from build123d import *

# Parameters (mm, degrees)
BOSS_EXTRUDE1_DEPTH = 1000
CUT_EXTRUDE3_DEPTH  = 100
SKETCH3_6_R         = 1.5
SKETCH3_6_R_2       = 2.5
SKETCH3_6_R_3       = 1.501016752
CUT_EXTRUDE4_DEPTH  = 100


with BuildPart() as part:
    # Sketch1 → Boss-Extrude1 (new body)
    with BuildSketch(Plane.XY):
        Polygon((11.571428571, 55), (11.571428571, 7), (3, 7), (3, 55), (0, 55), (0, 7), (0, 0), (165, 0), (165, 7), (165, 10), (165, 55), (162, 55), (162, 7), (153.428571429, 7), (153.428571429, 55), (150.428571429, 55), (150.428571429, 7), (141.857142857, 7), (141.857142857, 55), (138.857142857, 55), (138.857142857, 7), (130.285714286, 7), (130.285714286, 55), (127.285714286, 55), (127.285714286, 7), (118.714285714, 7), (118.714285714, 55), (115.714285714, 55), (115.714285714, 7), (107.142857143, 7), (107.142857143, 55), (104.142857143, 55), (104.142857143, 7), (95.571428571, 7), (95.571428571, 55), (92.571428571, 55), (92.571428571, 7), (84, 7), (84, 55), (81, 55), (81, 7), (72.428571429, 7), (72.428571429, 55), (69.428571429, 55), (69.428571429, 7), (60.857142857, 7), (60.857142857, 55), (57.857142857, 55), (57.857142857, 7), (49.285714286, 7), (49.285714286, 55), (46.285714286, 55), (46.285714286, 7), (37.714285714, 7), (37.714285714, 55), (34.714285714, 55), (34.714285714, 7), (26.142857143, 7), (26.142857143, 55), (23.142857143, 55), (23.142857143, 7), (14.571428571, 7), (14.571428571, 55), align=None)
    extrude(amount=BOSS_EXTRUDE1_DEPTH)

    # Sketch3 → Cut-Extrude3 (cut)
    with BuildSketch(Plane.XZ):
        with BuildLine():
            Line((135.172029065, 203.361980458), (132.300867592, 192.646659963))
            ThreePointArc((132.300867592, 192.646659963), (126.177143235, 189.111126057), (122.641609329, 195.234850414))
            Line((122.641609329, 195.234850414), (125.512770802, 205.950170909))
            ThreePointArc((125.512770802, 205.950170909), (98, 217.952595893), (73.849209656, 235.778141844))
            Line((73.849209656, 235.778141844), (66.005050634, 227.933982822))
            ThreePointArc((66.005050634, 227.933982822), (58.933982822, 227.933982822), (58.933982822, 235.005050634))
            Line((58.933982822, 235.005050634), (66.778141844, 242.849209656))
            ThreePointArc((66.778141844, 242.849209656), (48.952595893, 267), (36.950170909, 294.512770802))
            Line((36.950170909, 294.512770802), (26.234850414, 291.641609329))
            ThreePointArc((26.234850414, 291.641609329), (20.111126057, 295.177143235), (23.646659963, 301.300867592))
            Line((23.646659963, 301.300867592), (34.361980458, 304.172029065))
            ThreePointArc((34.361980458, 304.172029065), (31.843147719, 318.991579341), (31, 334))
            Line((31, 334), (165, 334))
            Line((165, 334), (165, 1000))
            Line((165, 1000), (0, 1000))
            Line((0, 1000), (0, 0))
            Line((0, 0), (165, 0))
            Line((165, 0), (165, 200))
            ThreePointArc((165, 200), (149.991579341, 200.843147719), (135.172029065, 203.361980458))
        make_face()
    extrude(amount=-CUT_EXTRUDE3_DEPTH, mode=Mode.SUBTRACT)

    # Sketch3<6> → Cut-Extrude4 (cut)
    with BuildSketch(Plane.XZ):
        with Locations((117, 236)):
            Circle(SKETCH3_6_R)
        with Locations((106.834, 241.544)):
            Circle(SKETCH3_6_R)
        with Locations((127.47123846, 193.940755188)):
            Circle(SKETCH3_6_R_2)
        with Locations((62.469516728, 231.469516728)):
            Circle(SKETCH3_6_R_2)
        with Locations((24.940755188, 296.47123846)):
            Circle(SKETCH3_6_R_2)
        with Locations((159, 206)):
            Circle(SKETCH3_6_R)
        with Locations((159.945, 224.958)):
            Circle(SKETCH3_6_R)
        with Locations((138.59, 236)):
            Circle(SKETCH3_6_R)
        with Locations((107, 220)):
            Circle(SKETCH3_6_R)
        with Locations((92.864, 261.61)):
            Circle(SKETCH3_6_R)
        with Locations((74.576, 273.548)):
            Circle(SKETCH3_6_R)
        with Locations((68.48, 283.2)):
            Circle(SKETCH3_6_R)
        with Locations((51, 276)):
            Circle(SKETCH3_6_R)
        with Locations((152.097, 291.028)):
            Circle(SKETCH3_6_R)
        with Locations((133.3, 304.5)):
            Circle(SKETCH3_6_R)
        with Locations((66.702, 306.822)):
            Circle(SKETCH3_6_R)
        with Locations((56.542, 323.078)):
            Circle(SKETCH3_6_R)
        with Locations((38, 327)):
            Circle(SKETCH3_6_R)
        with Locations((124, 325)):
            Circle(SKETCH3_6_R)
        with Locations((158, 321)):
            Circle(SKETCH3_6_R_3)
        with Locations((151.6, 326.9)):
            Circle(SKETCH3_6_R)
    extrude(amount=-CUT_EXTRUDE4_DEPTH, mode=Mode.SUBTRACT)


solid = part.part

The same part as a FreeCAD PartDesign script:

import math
import FreeCAD as App
import Part
import Sketcher
Q = App.Units.Quantity

doc = App.newDocument("Part")
body = doc.addObject("PartDesign::Body", "Body")

sketch1 = body.newObject("Sketcher::SketchObject", "Sketch")
sketch1.AttachmentSupport = (doc.getObject("XY_Plane"), [""])
sketch1.MapMode = "FlatFace"
sketch1.addGeometry([
    Part.LineSegment(App.Vector(11.6, 55, 0), App.Vector(11.6, 7, 0)),
    Part.LineSegment(App.Vector(11.6, 7, 0), App.Vector(3, 7, 0)),
    Part.LineSegment(App.Vector(3, 7, 0), App.Vector(3, 55, 0)),
    Part.LineSegment(App.Vector(3, 55, 0), App.Vector(0, 55, 0)),
    Part.LineSegment(App.Vector(0, 55, 0), App.Vector(0, 0, 0)),
    Part.LineSegment(App.Vector(0, 0, 0), App.Vector(165, 0, 0)),
    Part.LineSegment(App.Vector(165, 0, 0), App.Vector(165, 55, 0)),
    Part.LineSegment(App.Vector(165, 55, 0), App.Vector(162, 55, 0)),
    Part.LineSegment(App.Vector(162, 55, 0), App.Vector(162, 7, 0)),
    Part.LineSegment(App.Vector(162, 7, 0), App.Vector(153.4, 7, 0)),
    Part.LineSegment(App.Vector(153.4, 7, 0), App.Vector(153.4, 55, 0)),
    Part.LineSegment(App.Vector(153.4, 55, 0), App.Vector(150.4, 55, 0)),
    Part.LineSegment(App.Vector(150.4, 55, 0), App.Vector(150.4, 7, 0)),
    Part.LineSegment(App.Vector(150.4, 7, 0), App.Vector(141.9, 7, 0)),
    Part.LineSegment(App.Vector(141.9, 7, 0), App.Vector(141.9, 55, 0)),
    Part.LineSegment(App.Vector(141.9, 55, 0), App.Vector(138.9, 55, 0)),
    Part.LineSegment(App.Vector(138.9, 55, 0), App.Vector(138.9, 7, 0)),
    Part.LineSegment(App.Vector(138.9, 7, 0), App.Vector(130.3, 7, 0)),
    Part.LineSegment(App.Vector(130.3, 7, 0), App.Vector(130.3, 55, 0)),
    Part.LineSegment(App.Vector(130.3, 55, 0), App.Vector(127.3, 55, 0)),
    Part.LineSegment(App.Vector(127.3, 55, 0), App.Vector(127.3, 7, 0)),
    Part.LineSegment(App.Vector(127.3, 7, 0), App.Vector(118.7, 7, 0)),
    Part.LineSegment(App.Vector(118.7, 7, 0), App.Vector(118.7, 55, 0)),
    Part.LineSegment(App.Vector(118.7, 55, 0), App.Vector(115.7, 55, 0)),
    Part.LineSegment(App.Vector(115.7, 55, 0), App.Vector(115.7, 7, 0)),
    Part.LineSegment(App.Vector(115.7, 7, 0), App.Vector(107.1, 7, 0)),
    Part.LineSegment(App.Vector(107.1, 7, 0), App.Vector(107.1, 55, 0)),
    Part.LineSegment(App.Vector(107.1, 55, 0), App.Vector(104.1, 55, 0)),
    Part.LineSegment(App.Vector(104.1, 55, 0), App.Vector(104.1, 7, 0)),
    Part.LineSegment(App.Vector(104.1, 7, 0), App.Vector(95.6, 7, 0)),
    Part.LineSegment(App.Vector(95.6, 7, 0), App.Vector(95.6, 55, 0)),
    Part.LineSegment(App.Vector(95.6, 55, 0), App.Vector(92.6, 55, 0)),
    Part.LineSegment(App.Vector(92.6, 55, 0), App.Vector(92.6, 7, 0)),
    Part.LineSegment(App.Vector(92.6, 7, 0), App.Vector(84, 7, 0)),
    Part.LineSegment(App.Vector(84, 7, 0), App.Vector(84, 55, 0)),
    Part.LineSegment(App.Vector(84, 55, 0), App.Vector(81, 55, 0)),
    Part.LineSegment(App.Vector(81, 55, 0), App.Vector(81, 7, 0)),
    Part.LineSegment(App.Vector(81, 7, 0), App.Vector(72.4, 7, 0)),
    Part.LineSegment(App.Vector(72.4, 7, 0), App.Vector(72.4, 55, 0)),
    Part.LineSegment(App.Vector(72.4, 55, 0), App.Vector(69.4, 55, 0)),
    Part.LineSegment(App.Vector(69.4, 55, 0), App.Vector(69.4, 7, 0)),
    Part.LineSegment(App.Vector(69.4, 7, 0), App.Vector(60.9, 7, 0)),
    Part.LineSegment(App.Vector(60.9, 7, 0), App.Vector(60.9, 55, 0)),
    Part.LineSegment(App.Vector(60.9, 55, 0), App.Vector(57.9, 55, 0)),
    Part.LineSegment(App.Vector(57.9, 55, 0), App.Vector(57.9, 7, 0)),
    Part.LineSegment(App.Vector(57.9, 7, 0), App.Vector(49.3, 7, 0)),
    Part.LineSegment(App.Vector(49.3, 7, 0), App.Vector(49.3, 55, 0)),
    Part.LineSegment(App.Vector(49.3, 55, 0), App.Vector(46.3, 55, 0)),
    Part.LineSegment(App.Vector(46.3, 55, 0), App.Vector(46.3, 7, 0)),
    Part.LineSegment(App.Vector(46.3, 7, 0), App.Vector(37.7, 7, 0)),
    Part.LineSegment(App.Vector(37.7, 7, 0), App.Vector(37.7, 55, 0)),
    Part.LineSegment(App.Vector(37.7, 55, 0), App.Vector(34.7, 55, 0)),
    Part.LineSegment(App.Vector(34.7, 55, 0), App.Vector(34.7, 7, 0)),
    Part.LineSegment(App.Vector(34.7, 7, 0), App.Vector(26.1, 7, 0)),
    Part.LineSegment(App.Vector(26.1, 7, 0), App.Vector(26.1, 55, 0)),
    Part.LineSegment(App.Vector(26.1, 55, 0), App.Vector(23.1, 55, 0)),
    Part.LineSegment(App.Vector(23.1, 55, 0), App.Vector(23.1, 7, 0)),
    Part.LineSegment(App.Vector(23.1, 7, 0), App.Vector(14.6, 7, 0)),
    Part.LineSegment(App.Vector(14.6, 7, 0), App.Vector(14.6, 55, 0)),
    Part.LineSegment(App.Vector(14.6, 55, 0), App.Vector(11.6, 55, 0)),
], False)
sketch1.addConstraint([
    Sketcher.Constraint("Coincident", 0, 2, 1, 1),
    Sketcher.Constraint("Coincident", 1, 2, 2, 1),
    Sketcher.Constraint("Coincident", 2, 2, 3, 1),
    Sketcher.Constraint("Coincident", 3, 2, 4, 1),
    Sketcher.Constraint("Coincident", 4, 2, 5, 1),
    Sketcher.Constraint("Coincident", 5, 2, 6, 1),
    Sketcher.Constraint("Coincident", 6, 2, 7, 1),
    Sketcher.Constraint("Coincident", 7, 2, 8, 1),
    Sketcher.Constraint("Coincident", 8, 2, 9, 1),
    Sketcher.Constraint("Coincident", 9, 2, 10, 1),
    Sketcher.Constraint("Coincident", 10, 2, 11, 1),
    Sketcher.Constraint("Coincident", 11, 2, 12, 1),
    Sketcher.Constraint("Coincident", 12, 2, 13, 1),
    Sketcher.Constraint("Coincident", 13, 2, 14, 1),
    Sketcher.Constraint("Coincident", 14, 2, 15, 1),
    Sketcher.Constraint("Coincident", 15, 2, 16, 1),
    Sketcher.Constraint("Coincident", 16, 2, 17, 1),
    Sketcher.Constraint("Coincident", 17, 2, 18, 1),
    Sketcher.Constraint("Coincident", 18, 2, 19, 1),
    Sketcher.Constraint("Coincident", 19, 2, 20, 1),
    Sketcher.Constraint("Coincident", 20, 2, 21, 1),
    Sketcher.Constraint("Coincident", 21, 2, 22, 1),
    Sketcher.Constraint("Coincident", 22, 2, 23, 1),
    Sketcher.Constraint("Coincident", 23, 2, 24, 1),
    Sketcher.Constraint("Coincident", 24, 2, 25, 1),
    Sketcher.Constraint("Coincident", 25, 2, 26, 1),
    Sketcher.Constraint("Coincident", 26, 2, 27, 1),
    Sketcher.Constraint("Coincident", 27, 2, 28, 1),
    Sketcher.Constraint("Coincident", 28, 2, 29, 1),
    Sketcher.Constraint("Coincident", 29, 2, 30, 1),
    Sketcher.Constraint("Coincident", 30, 2, 31, 1),
    Sketcher.Constraint("Coincident", 31, 2, 32, 1),
    Sketcher.Constraint("Coincident", 32, 2, 33, 1),
    Sketcher.Constraint("Coincident", 33, 2, 34, 1),
    Sketcher.Constraint("Coincident", 34, 2, 35, 1),
    Sketcher.Constraint("Coincident", 35, 2, 36, 1),
    Sketcher.Constraint("Coincident", 36, 2, 37, 1),
    Sketcher.Constraint("Coincident", 37, 2, 38, 1),
    Sketcher.Constraint("Coincident", 38, 2, 39, 1),
    Sketcher.Constraint("Coincident", 39, 2, 40, 1),
    Sketcher.Constraint("Coincident", 40, 2, 41, 1),
    Sketcher.Constraint("Coincident", 41, 2, 42, 1),
    Sketcher.Constraint("Coincident", 42, 2, 43, 1),
    Sketcher.Constraint("Coincident", 43, 2, 44, 1),
    Sketcher.Constraint("Coincident", 44, 2, 45, 1),
    Sketcher.Constraint("Coincident", 45, 2, 46, 1),
    Sketcher.Constraint("Coincident", 46, 2, 47, 1),
    Sketcher.Constraint("Coincident", 47, 2, 48, 1),
    Sketcher.Constraint("Coincident", 48, 2, 49, 1),
    Sketcher.Constraint("Coincident", 49, 2, 50, 1),
    Sketcher.Constraint("Coincident", 50, 2, 51, 1),
    Sketcher.Constraint("Coincident", 51, 2, 52, 1),
    Sketcher.Constraint("Coincident", 52, 2, 53, 1),
    Sketcher.Constraint("Coincident", 53, 2, 54, 1),
    Sketcher.Constraint("Coincident", 54, 2, 55, 1),
    Sketcher.Constraint("Coincident", 55, 2, 56, 1),
    Sketcher.Constraint("Coincident", 56, 2, 57, 1),
    Sketcher.Constraint("Coincident", 57, 2, 58, 1),
    Sketcher.Constraint("Coincident", 58, 2, 59, 1),
    Sketcher.Constraint("Coincident", 59, 2, 0, 1),
    Sketcher.Constraint("Vertical", 0),
    Sketcher.Constraint("Horizontal", 1),
    Sketcher.Constraint("Vertical", 2),
    Sketcher.Constraint("Horizontal", 3),
    Sketcher.Constraint("Vertical", 4),
    Sketcher.Constraint("Horizontal", 5),
    Sketcher.Constraint("Vertical", 6),
    Sketcher.Constraint("Horizontal", 7),
    Sketcher.Constraint("Vertical", 8),
    Sketcher.Constraint("Horizontal", 9),
    Sketcher.Constraint("Vertical", 10),
    Sketcher.Constraint("Horizontal", 11),
    Sketcher.Constraint("Vertical", 12),
    Sketcher.Constraint("Horizontal", 13),
    Sketcher.Constraint("Vertical", 14),
    Sketcher.Constraint("Horizontal", 15),
    Sketcher.Constraint("Vertical", 16),
    Sketcher.Constraint("Horizontal", 17),
    Sketcher.Constraint("Vertical", 18),
    Sketcher.Constraint("Horizontal", 19),
    Sketcher.Constraint("Vertical", 20),
    Sketcher.Constraint("Horizontal", 21),
    Sketcher.Constraint("Vertical", 22),
    Sketcher.Constraint("Horizontal", 23),
    Sketcher.Constraint("Vertical", 24),
    Sketcher.Constraint("Horizontal", 25),
    Sketcher.Constraint("Vertical", 26),
    Sketcher.Constraint("Horizontal", 27),
    Sketcher.Constraint("Vertical", 28),
    Sketcher.Constraint("Horizontal", 29),
    Sketcher.Constraint("Vertical", 30),
    Sketcher.Constraint("Horizontal", 31),
    Sketcher.Constraint("Vertical", 32),
    Sketcher.Constraint("Horizontal", 33),
    Sketcher.Constraint("Vertical", 34),
    Sketcher.Constraint("Horizontal", 35),
    Sketcher.Constraint("Vertical", 36),
    Sketcher.Constraint("Horizontal", 37),
    Sketcher.Constraint("Vertical", 38),
    Sketcher.Constraint("Horizontal", 39),
    Sketcher.Constraint("Vertical", 40),
    Sketcher.Constraint("Horizontal", 41),
    Sketcher.Constraint("Vertical", 42),
    Sketcher.Constraint("Horizontal", 43),
    Sketcher.Constraint("Vertical", 44),
    Sketcher.Constraint("Horizontal", 45),
    Sketcher.Constraint("Vertical", 46),
    Sketcher.Constraint("Horizontal", 47),
    Sketcher.Constraint("Vertical", 48),
    Sketcher.Constraint("Horizontal", 49),
    Sketcher.Constraint("Vertical", 50),
    Sketcher.Constraint("Horizontal", 51),
    Sketcher.Constraint("Vertical", 52),
    Sketcher.Constraint("Horizontal", 53),
    Sketcher.Constraint("Vertical", 54),
    Sketcher.Constraint("Horizontal", 55),
    Sketcher.Constraint("Vertical", 56),
    Sketcher.Constraint("Horizontal", 57),
    Sketcher.Constraint("Vertical", 58),
    Sketcher.Constraint("Horizontal", 59),
    Sketcher.Constraint("Coincident", 4, 2, -1, 1),
    Sketcher.Constraint("Horizontal", 3, 2, 6, 2),
    Sketcher.Constraint("Horizontal", 1, 2, 8, 2),
    Sketcher.Constraint("Horizontal", 7, 2, 10, 2),
    Sketcher.Constraint("Horizontal", 9, 2, 12, 2),
    Sketcher.Constraint("Horizontal", 11, 2, 14, 2),
    Sketcher.Constraint("Horizontal", 13, 2, 16, 2),
    Sketcher.Constraint("Horizontal", 15, 2, 18, 2),
    Sketcher.Constraint("Horizontal", 17, 2, 20, 2),
    Sketcher.Constraint("Horizontal", 19, 2, 22, 2),
    Sketcher.Constraint("Horizontal", 21, 2, 24, 2),
    Sketcher.Constraint("Horizontal", 23, 2, 26, 2),
    Sketcher.Constraint("Horizontal", 25, 2, 28, 2),
    Sketcher.Constraint("Horizontal", 27, 2, 30, 2),
    Sketcher.Constraint("Horizontal", 29, 2, 32, 2),
    Sketcher.Constraint("Horizontal", 31, 2, 34, 2),
    Sketcher.Constraint("Horizontal", 33, 2, 36, 2),
    Sketcher.Constraint("Horizontal", 35, 2, 38, 2),
    Sketcher.Constraint("Horizontal", 37, 2, 40, 2),
    Sketcher.Constraint("Horizontal", 39, 2, 42, 2),
    Sketcher.Constraint("Horizontal", 41, 2, 44, 2),
    Sketcher.Constraint("Horizontal", 43, 2, 46, 2),
    Sketcher.Constraint("Horizontal", 45, 2, 48, 2),
    Sketcher.Constraint("Horizontal", 47, 2, 50, 2),
    Sketcher.Constraint("Horizontal", 49, 2, 52, 2),
    Sketcher.Constraint("Horizontal", 51, 2, 54, 2),
    Sketcher.Constraint("Horizontal", 53, 2, 56, 2),
    Sketcher.Constraint("Horizontal", 55, 2, 58, 2),
    Sketcher.Constraint("Equal", 3, 7),
    Sketcher.Constraint("Equal", 1, 9),
    Sketcher.Constraint("Equal", 7, 11),
    Sketcher.Constraint("Equal", 9, 13),
    Sketcher.Constraint("Equal", 11, 15),
    Sketcher.Constraint("Equal", 13, 17),
    Sketcher.Constraint("Equal", 15, 19),
    Sketcher.Constraint("Equal", 17, 21),
    Sketcher.Constraint("Equal", 19, 23),
    Sketcher.Constraint("Equal", 21, 25),
    Sketcher.Constraint("Equal", 23, 27),
    Sketcher.Constraint("Equal", 25, 29),
    Sketcher.Constraint("Equal", 27, 31),
    Sketcher.Constraint("Equal", 29, 33),
    Sketcher.Constraint("Equal", 31, 35),
    Sketcher.Constraint("Equal", 33, 37),
    Sketcher.Constraint("Equal", 35, 39),
    Sketcher.Constraint("Equal", 37, 41),
    Sketcher.Constraint("Equal", 39, 43),
    Sketcher.Constraint("Equal", 41, 45),
    Sketcher.Constraint("Equal", 43, 47),
    Sketcher.Constraint("Equal", 45, 49),
    Sketcher.Constraint("Equal", 47, 51),
    Sketcher.Constraint("Equal", 49, 53),
    Sketcher.Constraint("Equal", 51, 55),
    Sketcher.Constraint("Equal", 53, 57),
    Sketcher.Constraint("Equal", 55, 59),
    Sketcher.Constraint("DistanceX", 3, 2, 3, 1, 3.0),
    Sketcher.Constraint("DistanceX", 5, 1, 5, 2, 165.0),
    Sketcher.Constraint("DistanceY", 0, 2, 0, 1, 48.0),
    Sketcher.Constraint("DistanceY", 4, 2, 4, 1, 55.0),
])
pad1 = body.newObject("PartDesign::Pad", "Pad")
pad1.Profile = sketch1
pad1.Length = 1000

sketch2 = body.newObject("Sketcher::SketchObject", "Sketch001")
sketch2.AttachmentSupport = (doc.getObject("XZ_Plane"), [""])
sketch2.MapMode = "FlatFace"
sketch2.addGeometry([
    Part.LineSegment(App.Vector(135, 203, 0), App.Vector(132, 193, 0)),
    Part.ArcOfCircle(Part.Circle(App.Vector(127, 194, 0), App.Vector(0, 0, 1), 5), math.radians(165), math.radians(345)),
    Part.LineSegment(App.Vector(123, 195, 0), App.Vector(126, 206, 0)),
    Part.ArcOfCircle(Part.Circle(App.Vector(165, 334, 0), App.Vector(0, 0, 1), 134), math.radians(-133), math.radians(-107)),
    Part.LineSegment(App.Vector(74, 236, 0), App.Vector(66, 228, 0)),
    Part.ArcOfCircle(Part.Circle(App.Vector(62, 231, 0), App.Vector(0, 0, 1), 5), math.radians(135), math.radians(315)),
    Part.LineSegment(App.Vector(59, 235, 0), App.Vector(67, 243, 0)),
    Part.ArcOfCircle(Part.Circle(App.Vector(165, 334, 0), App.Vector(0, 0, 1), 134), math.radians(-163), math.radians(-137)),
    Part.LineSegment(App.Vector(37, 295, 0), App.Vector(26, 292, 0)),
    Part.ArcOfCircle(Part.Circle(App.Vector(25, 296, 0), App.Vector(0, 0, 1), 5), math.radians(105), math.radians(285)),
    Part.LineSegment(App.Vector(24, 301, 0), App.Vector(34, 304, 0)),
    Part.ArcOfCircle(Part.Circle(App.Vector(165, 334, 0), App.Vector(0, 0, 1), 134), math.radians(180), math.radians(192.86)),
    Part.LineSegment(App.Vector(31, 334, 0), App.Vector(165, 334, 0)),
    Part.LineSegment(App.Vector(165, 334, 0), App.Vector(165, 1000, 0)),
    Part.LineSegment(App.Vector(165, 1000, 0), App.Vector(0, 1000, 0)),
    Part.LineSegment(App.Vector(0, 1000, 0), App.Vector(0, 0, 0)),
    Part.LineSegment(App.Vector(0, 0, 0), App.Vector(165, 0, 0)),
    Part.LineSegment(App.Vector(165, 0, 0), App.Vector(165, 200, 0)),
    Part.ArcOfCircle(Part.Circle(App.Vector(165, 334, 0), App.Vector(0, 0, 1), 134), math.radians(-102.86), math.radians(-90)),
], False)
sketch2.addConstraint([
    Sketcher.Constraint("Tangent", 0, 2, 1, 2),
    Sketcher.Constraint("Tangent", 1, 1, 2, 1),
    Sketcher.Constraint("Coincident", 2, 2, 3, 2),
    Sketcher.Constraint("Coincident", 3, 1, 4, 1),
    Sketcher.Constraint("Tangent", 4, 2, 5, 2),
    Sketcher.Constraint("Tangent", 5, 1, 6, 1),
    Sketcher.Constraint("Coincident", 6, 2, 7, 2),
    Sketcher.Constraint("Coincident", 7, 1, 8, 1),
    Sketcher.Constraint("Tangent", 8, 2, 9, 2),
    Sketcher.Constraint("Tangent", 9, 1, 10, 1),
    Sketcher.Constraint("Coincident", 10, 2, 11, 2),
    Sketcher.Constraint("Coincident", 11, 1, 12, 1),
    Sketcher.Constraint("Coincident", 12, 2, 13, 1),
    Sketcher.Constraint("Coincident", 13, 2, 14, 1),
    Sketcher.Constraint("Coincident", 14, 2, 15, 1),
    Sketcher.Constraint("Coincident", 15, 2, 16, 1),
    Sketcher.Constraint("Coincident", 16, 2, 17, 1),
    Sketcher.Constraint("Coincident", 17, 2, 18, 2),
    Sketcher.Constraint("Coincident", 18, 1, 0, 1),
    Sketcher.Constraint("Horizontal", 12),
    Sketcher.Constraint("Vertical", 13),
    Sketcher.Constraint("Horizontal", 14),
    Sketcher.Constraint("Vertical", 15),
    Sketcher.Constraint("Horizontal", 16),
    Sketcher.Constraint("Vertical", 17),
    Sketcher.Constraint("Coincident", 15, 2, -1, 1),
    Sketcher.Constraint("Coincident", 7, 3, 3, 3),
    Sketcher.Constraint("Coincident", 11, 3, 3, 3),
    Sketcher.Constraint("Coincident", 18, 3, 3, 3),
    Sketcher.Constraint("Coincident", 12, 2, 3, 3),
    Sketcher.Constraint("Equal", 1, 5),
    Sketcher.Constraint("Equal", 3, 7),
    Sketcher.Constraint("Equal", 5, 9),
    Sketcher.Constraint("Equal", 7, 11),
    Sketcher.Constraint("Equal", 11, 18),
    Sketcher.Constraint("Parallel", 0, 2),
    Sketcher.Constraint("Parallel", 4, 6),
    Sketcher.Constraint("Parallel", 8, 10),
    Sketcher.Constraint("Vertical", 13, 2, 16, 2),
    Sketcher.Constraint("Equal", 0, 2),
    Sketcher.Constraint("Equal", 2, 4),
    Sketcher.Constraint("Equal", 4, 6),
    Sketcher.Constraint("Equal", 6, 8),
    Sketcher.Constraint("Equal", 8, 10),
    Sketcher.Constraint("Radius", 1, 5.0),
    Sketcher.Constraint("Radius", 3, 134.0),
    Sketcher.Constraint("DistanceX", 14, 2, 14, 1, 165.0),
    Sketcher.Constraint("DistanceY", 13, 1, 13, 2, 666.0),
    Sketcher.Constraint("DistanceY", 15, 2, 15, 1, 1000.0),
    Sketcher.Constraint("Angle", 0, Q("-105 deg")),
    Sketcher.Constraint("Angle", 4, Q("-135 deg")),
    Sketcher.Constraint("Angle", 8, Q("-165 deg")),
    Sketcher.Constraint("DistanceY", 6, 2, 8, 2, 48.7924),
])
pocket1 = body.newObject("PartDesign::Pocket", "Pocket")
pocket1.Profile = sketch2
pocket1.Length = 100

sketch3 = body.newObject("Sketcher::SketchObject", "Sketch002")
sketch3.AttachmentSupport = (doc.getObject("XZ_Plane"), [""])
sketch3.MapMode = "FlatFace"
sketch3.addGeometry([
    Part.Circle(App.Vector(117, 236, 0), App.Vector(0, 0, 1), 1.5),
    Part.Circle(App.Vector(106.8, 241.5, 0), App.Vector(0, 0, 1), 1.5),
    Part.Circle(App.Vector(127.5, 193.9, 0), App.Vector(0, 0, 1), 2.5),
    Part.Circle(App.Vector(62.5, 231.5, 0), App.Vector(0, 0, 1), 2.5),
    Part.Circle(App.Vector(24.9, 296.5, 0), App.Vector(0, 0, 1), 2.5),
    Part.Circle(App.Vector(159, 206, 0), App.Vector(0, 0, 1), 1.5),
    Part.Circle(App.Vector(159.9, 225, 0), App.Vector(0, 0, 1), 1.5),
    Part.Circle(App.Vector(138.6, 236, 0), App.Vector(0, 0, 1), 1.5),
    Part.Circle(App.Vector(107, 220, 0), App.Vector(0, 0, 1), 1.5),
    Part.Circle(App.Vector(92.9, 261.6, 0), App.Vector(0, 0, 1), 1.5),
    Part.Circle(App.Vector(74.6, 273.5, 0), App.Vector(0, 0, 1), 1.5),
    Part.Circle(App.Vector(68.5, 283.2, 0), App.Vector(0, 0, 1), 1.5),
    Part.Circle(App.Vector(51, 276, 0), App.Vector(0, 0, 1), 1.5),
    Part.Circle(App.Vector(152.1, 291, 0), App.Vector(0, 0, 1), 1.5),
    Part.Circle(App.Vector(133.3, 304.5, 0), App.Vector(0, 0, 1), 1.5),
    Part.Circle(App.Vector(66.7, 306.8, 0), App.Vector(0, 0, 1), 1.5),
    Part.Circle(App.Vector(56.5, 323.1, 0), App.Vector(0, 0, 1), 1.5),
    Part.Circle(App.Vector(38, 327, 0), App.Vector(0, 0, 1), 1.5),
    Part.Circle(App.Vector(124, 325, 0), App.Vector(0, 0, 1), 1.5),
    Part.Circle(App.Vector(158, 321, 0), App.Vector(0, 0, 1), 1.5),
    Part.Circle(App.Vector(151.6, 326.9, 0), App.Vector(0, 0, 1), 1.5),
], False)
sketch3.addConstraint([
    Sketcher.Constraint("Equal", 0, 1),
    Sketcher.Constraint("Equal", 2, 3),
    Sketcher.Constraint("Equal", 3, 4),
    Sketcher.Constraint("Equal", 1, 5),
    Sketcher.Constraint("Equal", 5, 6),
    Sketcher.Constraint("Equal", 6, 7),
    Sketcher.Constraint("Equal", 7, 8),
    Sketcher.Constraint("Equal", 8, 9),
    Sketcher.Constraint("Equal", 9, 10),
    Sketcher.Constraint("Equal", 10, 11),
    Sketcher.Constraint("Equal", 11, 12),
    Sketcher.Constraint("Equal", 12, 13),
    Sketcher.Constraint("Equal", 13, 14),
    Sketcher.Constraint("Equal", 14, 15),
    Sketcher.Constraint("Equal", 15, 16),
    Sketcher.Constraint("Equal", 16, 17),
    Sketcher.Constraint("Equal", 17, 18),
    Sketcher.Constraint("Equal", 18, 20),
    Sketcher.Constraint("Horizontal", 0, 3, 7, 3),
    Sketcher.Constraint("Diameter", 0, 3.0),
    Sketcher.Constraint("Diameter", 2, 5.0),
    Sketcher.Constraint("DistanceX", -1, 1, 0, 3, 117.0),
    Sketcher.Constraint("DistanceY", -1, 1, 0, 3, 236.0),
    Sketcher.Constraint("DistanceX", -1, 1, 5, 3, 159.0),
    Sketcher.Constraint("DistanceY", -1, 1, 5, 3, 206.0),
    Sketcher.Constraint("DistanceX", -1, 1, 8, 3, 107.0),
    Sketcher.Constraint("DistanceY", -1, 1, 8, 3, 220.0),
    Sketcher.Constraint("DistanceX", -1, 1, 12, 3, 51.0),
    Sketcher.Constraint("DistanceY", -1, 1, 12, 3, 276.0),
    Sketcher.Constraint("DistanceX", -1, 1, 17, 3, 38.0),
    Sketcher.Constraint("DistanceY", -1, 1, 17, 3, 327.0),
    Sketcher.Constraint("DistanceX", -1, 1, 18, 3, 124.0),
    Sketcher.Constraint("DistanceY", -1, 1, 18, 3, 325.0),
    Sketcher.Constraint("DistanceX", -1, 1, 19, 3, 158.0),
    Sketcher.Constraint("DistanceY", -1, 1, 19, 3, 321.0),
    Sketcher.Constraint("DistanceY", -1, 1, 11, 3, 283.2),
    Sketcher.Constraint("DistanceX", -1, 1, 14, 3, 133.3),
    Sketcher.Constraint("DistanceY", -1, 1, 14, 3, 304.5),
    Sketcher.Constraint("DistanceX", -1, 1, 20, 3, 151.6),
    Sketcher.Constraint("DistanceY", -1, 1, 20, 3, 326.9),
    Sketcher.Constraint("DistanceX", -1, 1, 7, 3, 138.59),
    Sketcher.Constraint("DistanceY", -1, 1, 9, 3, 261.61),
    Sketcher.Constraint("DistanceX", -1, 1, 11, 3, 68.48),
    Sketcher.Constraint("DistanceX", 9, 3, 1, 3, 13.97),
    Sketcher.Constraint("DistanceY", 6, 3, 13, 3, 66.07),
    Sketcher.Constraint("DistanceX", 16, 3, 15, 3, 10.16),
    Sketcher.Constraint("DistanceY", 10, 3, 16, 3, 49.53),
    Sketcher.Constraint("Diameter", 19, 3.002034),
    Sketcher.Constraint("DistanceX", -1, 1, 1, 3, 106.834),
    Sketcher.Constraint("DistanceY", -1, 1, 1, 3, 241.544),
    Sketcher.Constraint("DistanceX", -1, 1, 6, 3, 159.945),
    Sketcher.Constraint("DistanceY", -1, 1, 6, 3, 224.958),
    Sketcher.Constraint("DistanceX", -1, 1, 10, 3, 74.576),
    Sketcher.Constraint("DistanceY", -1, 1, 10, 3, 273.548),
    Sketcher.Constraint("DistanceX", -1, 1, 13, 3, 152.097),
    Sketcher.Constraint("DistanceX", -1, 1, 15, 3, 66.702),
    Sketcher.Constraint("DistanceY", -1, 1, 15, 3, 306.822),
    Sketcher.Constraint("DistanceX", -1, 1, 2, 3, 127.471238),
    Sketcher.Constraint("DistanceY", -1, 1, 4, 3, 296.471238),
    Sketcher.Constraint("DistanceX", 3, 3, 2, 3, 65.001722),
    Sketcher.Constraint("DistanceY", 2, 3, 3, 3, 37.528762),
    Sketcher.Constraint("DistanceX", 4, 3, 3, 3, 37.528762),
    Sketcher.Constraint("DistanceY", 3, 3, 4, 3, 65.001722),
])
pocket2 = body.newObject("PartDesign::Pocket", "Pocket001")
pocket2.Profile = sketch3
pocket2.Length = 100

doc.recompute()
